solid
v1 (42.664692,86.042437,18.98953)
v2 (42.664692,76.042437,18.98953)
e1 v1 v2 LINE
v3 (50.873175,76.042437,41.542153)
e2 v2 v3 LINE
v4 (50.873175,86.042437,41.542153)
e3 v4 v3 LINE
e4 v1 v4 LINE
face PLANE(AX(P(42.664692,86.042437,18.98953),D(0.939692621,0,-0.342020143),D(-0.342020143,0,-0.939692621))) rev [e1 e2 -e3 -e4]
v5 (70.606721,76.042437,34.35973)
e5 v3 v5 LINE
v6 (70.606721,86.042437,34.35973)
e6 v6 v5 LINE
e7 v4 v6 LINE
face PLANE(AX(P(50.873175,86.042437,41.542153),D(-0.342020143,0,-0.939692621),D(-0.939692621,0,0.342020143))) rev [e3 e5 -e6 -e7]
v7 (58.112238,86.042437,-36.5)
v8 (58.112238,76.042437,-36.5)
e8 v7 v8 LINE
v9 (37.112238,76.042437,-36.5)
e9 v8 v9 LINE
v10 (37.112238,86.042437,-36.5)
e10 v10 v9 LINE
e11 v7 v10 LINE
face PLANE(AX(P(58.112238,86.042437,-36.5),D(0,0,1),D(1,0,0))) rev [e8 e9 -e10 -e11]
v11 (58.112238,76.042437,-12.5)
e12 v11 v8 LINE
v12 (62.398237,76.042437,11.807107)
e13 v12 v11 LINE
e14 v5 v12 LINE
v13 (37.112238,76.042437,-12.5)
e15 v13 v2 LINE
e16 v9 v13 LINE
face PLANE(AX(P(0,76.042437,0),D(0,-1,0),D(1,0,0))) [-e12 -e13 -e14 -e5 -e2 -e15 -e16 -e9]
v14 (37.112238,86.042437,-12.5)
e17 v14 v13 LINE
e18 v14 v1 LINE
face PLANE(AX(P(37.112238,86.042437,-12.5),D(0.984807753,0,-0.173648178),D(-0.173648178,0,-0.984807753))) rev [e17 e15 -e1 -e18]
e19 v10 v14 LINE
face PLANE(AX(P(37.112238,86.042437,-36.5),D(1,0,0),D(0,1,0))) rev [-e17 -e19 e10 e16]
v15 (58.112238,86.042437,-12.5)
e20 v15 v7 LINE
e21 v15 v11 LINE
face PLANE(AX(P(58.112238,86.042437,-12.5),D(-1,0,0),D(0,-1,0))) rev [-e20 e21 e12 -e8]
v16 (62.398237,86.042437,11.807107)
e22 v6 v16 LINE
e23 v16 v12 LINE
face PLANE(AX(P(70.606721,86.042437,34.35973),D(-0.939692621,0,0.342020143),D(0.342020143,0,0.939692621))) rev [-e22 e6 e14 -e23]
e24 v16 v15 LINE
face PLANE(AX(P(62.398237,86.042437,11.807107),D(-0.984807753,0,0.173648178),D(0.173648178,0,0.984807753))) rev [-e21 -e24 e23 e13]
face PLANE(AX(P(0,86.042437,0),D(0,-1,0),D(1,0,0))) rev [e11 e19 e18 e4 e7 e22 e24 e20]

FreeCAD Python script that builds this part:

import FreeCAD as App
import Part
import Sketcher
from FreeCAD import Vector
Q = App.Units.Quantity


def add_polygon(sketch, points):
    """Adds a closed chain of lines whose ends are joined by coincident constraints."""
    first, n = sketch.GeometryCount, len(points)
    for a, b in zip(points, points[1:] + points[:1]):
        sketch.addGeometry(Part.LineSegment(App.Vector(*a, 0), App.Vector(*b, 0)), False)
    for i in range(n):
        sketch.addConstraint(Sketcher.Constraint("Coincident", first + i, 2, first + (i + 1) % n, 1))

doc = App.newDocument("Part")
params = doc.addObject("Spreadsheet::Sheet", "Params")
for row, (alias, value) in enumerate([
    ("sketch1_width", "21 mm"),
    ("sketch1_height", "24 mm"),
    ("sketch1_length", "24 mm"),
    ("pad1_length", "10 mm"),
], start=1):
    params.set(f"A{row}", alias)
    params.set(f"B{row}", "=" + value)
    params.setAlias(f"B{row}", alias)

body = doc.addObject("PartDesign::Body", "Body")

sketch1 = body.newObject("Sketcher::SketchObject", "Sketch")
sketch1.AttachmentSupport = (doc.getObject("XZ_Plane"), [""])
sketch1.MapMode = "FlatFace"
sketch1.AttachmentOffset = App.Placement(Vector(0, 0, -76.042437), App.Rotation())
add_polygon(sketch1, [(37, -13), (43, 19), (51, 42), (71, 34), (62, 12), (58, -13), (58, -37), (37, -37)])
sketch1.addConstraint(Sketcher.Constraint("Vertical", 5))
sketch1.addConstraint(Sketcher.Constraint("Horizontal", 6))
sketch1.addConstraint(Sketcher.Constraint("Vertical", 7))
sketch1.addConstraint(Sketcher.Constraint("Perpendicular", 1, 2))
sketch1.addConstraint(Sketcher.Constraint("Perpendicular", 2, 3))
sketch1.addConstraint(Sketcher.Constraint("Parallel", 0, 4))
sketch1.addConstraint(Sketcher.Constraint("Horizontal", 4, 2, 7, 2))
sketch1.addConstraint(Sketcher.Constraint("Equal", 1, 3))
sketch1.addConstraint(Sketcher.Constraint("DistanceX", 6, 2, 6, 1, Q("21 mm")))
sketch1.addConstraint(Sketcher.Constraint("DistanceY", 5, 2, 5, 1, Q("24 mm")))
sketch1.addConstraint(Sketcher.Constraint("Angle", 0, Q("80 deg")))
sketch1.addConstraint(Sketcher.Constraint("Angle", 1, Q("70 deg")))
sketch1.addConstraint(Sketcher.Constraint("Distance", 1, Q("24 mm")))
sketch1.addConstraint(Sketcher.Constraint("DistanceY", 4, 2, -1, 1, Q("12.5 mm")))
sketch1.addConstraint(Sketcher.Constraint("DistanceX", 4, 2, 3, 2, Q("4.285999 mm")))
sketch1.addConstraint(Sketcher.Constraint("DistanceX", -1, 1, 2, 2, Q("70.606721 mm")))
sketch1.setExpression("Constraints[16]", "Params.sketch1_width")
sketch1.setExpression("Constraints[17]", "Params.sketch1_height")
sketch1.setExpression("Constraints[20]", "Params.sketch1_length")
pad1 = body.newObject("PartDesign::Pad", "Pad")
pad1.Profile = sketch1
pad1.setExpression("Length", "Params.pad1_length")
pad1.Reversed = True

doc.recompute()
